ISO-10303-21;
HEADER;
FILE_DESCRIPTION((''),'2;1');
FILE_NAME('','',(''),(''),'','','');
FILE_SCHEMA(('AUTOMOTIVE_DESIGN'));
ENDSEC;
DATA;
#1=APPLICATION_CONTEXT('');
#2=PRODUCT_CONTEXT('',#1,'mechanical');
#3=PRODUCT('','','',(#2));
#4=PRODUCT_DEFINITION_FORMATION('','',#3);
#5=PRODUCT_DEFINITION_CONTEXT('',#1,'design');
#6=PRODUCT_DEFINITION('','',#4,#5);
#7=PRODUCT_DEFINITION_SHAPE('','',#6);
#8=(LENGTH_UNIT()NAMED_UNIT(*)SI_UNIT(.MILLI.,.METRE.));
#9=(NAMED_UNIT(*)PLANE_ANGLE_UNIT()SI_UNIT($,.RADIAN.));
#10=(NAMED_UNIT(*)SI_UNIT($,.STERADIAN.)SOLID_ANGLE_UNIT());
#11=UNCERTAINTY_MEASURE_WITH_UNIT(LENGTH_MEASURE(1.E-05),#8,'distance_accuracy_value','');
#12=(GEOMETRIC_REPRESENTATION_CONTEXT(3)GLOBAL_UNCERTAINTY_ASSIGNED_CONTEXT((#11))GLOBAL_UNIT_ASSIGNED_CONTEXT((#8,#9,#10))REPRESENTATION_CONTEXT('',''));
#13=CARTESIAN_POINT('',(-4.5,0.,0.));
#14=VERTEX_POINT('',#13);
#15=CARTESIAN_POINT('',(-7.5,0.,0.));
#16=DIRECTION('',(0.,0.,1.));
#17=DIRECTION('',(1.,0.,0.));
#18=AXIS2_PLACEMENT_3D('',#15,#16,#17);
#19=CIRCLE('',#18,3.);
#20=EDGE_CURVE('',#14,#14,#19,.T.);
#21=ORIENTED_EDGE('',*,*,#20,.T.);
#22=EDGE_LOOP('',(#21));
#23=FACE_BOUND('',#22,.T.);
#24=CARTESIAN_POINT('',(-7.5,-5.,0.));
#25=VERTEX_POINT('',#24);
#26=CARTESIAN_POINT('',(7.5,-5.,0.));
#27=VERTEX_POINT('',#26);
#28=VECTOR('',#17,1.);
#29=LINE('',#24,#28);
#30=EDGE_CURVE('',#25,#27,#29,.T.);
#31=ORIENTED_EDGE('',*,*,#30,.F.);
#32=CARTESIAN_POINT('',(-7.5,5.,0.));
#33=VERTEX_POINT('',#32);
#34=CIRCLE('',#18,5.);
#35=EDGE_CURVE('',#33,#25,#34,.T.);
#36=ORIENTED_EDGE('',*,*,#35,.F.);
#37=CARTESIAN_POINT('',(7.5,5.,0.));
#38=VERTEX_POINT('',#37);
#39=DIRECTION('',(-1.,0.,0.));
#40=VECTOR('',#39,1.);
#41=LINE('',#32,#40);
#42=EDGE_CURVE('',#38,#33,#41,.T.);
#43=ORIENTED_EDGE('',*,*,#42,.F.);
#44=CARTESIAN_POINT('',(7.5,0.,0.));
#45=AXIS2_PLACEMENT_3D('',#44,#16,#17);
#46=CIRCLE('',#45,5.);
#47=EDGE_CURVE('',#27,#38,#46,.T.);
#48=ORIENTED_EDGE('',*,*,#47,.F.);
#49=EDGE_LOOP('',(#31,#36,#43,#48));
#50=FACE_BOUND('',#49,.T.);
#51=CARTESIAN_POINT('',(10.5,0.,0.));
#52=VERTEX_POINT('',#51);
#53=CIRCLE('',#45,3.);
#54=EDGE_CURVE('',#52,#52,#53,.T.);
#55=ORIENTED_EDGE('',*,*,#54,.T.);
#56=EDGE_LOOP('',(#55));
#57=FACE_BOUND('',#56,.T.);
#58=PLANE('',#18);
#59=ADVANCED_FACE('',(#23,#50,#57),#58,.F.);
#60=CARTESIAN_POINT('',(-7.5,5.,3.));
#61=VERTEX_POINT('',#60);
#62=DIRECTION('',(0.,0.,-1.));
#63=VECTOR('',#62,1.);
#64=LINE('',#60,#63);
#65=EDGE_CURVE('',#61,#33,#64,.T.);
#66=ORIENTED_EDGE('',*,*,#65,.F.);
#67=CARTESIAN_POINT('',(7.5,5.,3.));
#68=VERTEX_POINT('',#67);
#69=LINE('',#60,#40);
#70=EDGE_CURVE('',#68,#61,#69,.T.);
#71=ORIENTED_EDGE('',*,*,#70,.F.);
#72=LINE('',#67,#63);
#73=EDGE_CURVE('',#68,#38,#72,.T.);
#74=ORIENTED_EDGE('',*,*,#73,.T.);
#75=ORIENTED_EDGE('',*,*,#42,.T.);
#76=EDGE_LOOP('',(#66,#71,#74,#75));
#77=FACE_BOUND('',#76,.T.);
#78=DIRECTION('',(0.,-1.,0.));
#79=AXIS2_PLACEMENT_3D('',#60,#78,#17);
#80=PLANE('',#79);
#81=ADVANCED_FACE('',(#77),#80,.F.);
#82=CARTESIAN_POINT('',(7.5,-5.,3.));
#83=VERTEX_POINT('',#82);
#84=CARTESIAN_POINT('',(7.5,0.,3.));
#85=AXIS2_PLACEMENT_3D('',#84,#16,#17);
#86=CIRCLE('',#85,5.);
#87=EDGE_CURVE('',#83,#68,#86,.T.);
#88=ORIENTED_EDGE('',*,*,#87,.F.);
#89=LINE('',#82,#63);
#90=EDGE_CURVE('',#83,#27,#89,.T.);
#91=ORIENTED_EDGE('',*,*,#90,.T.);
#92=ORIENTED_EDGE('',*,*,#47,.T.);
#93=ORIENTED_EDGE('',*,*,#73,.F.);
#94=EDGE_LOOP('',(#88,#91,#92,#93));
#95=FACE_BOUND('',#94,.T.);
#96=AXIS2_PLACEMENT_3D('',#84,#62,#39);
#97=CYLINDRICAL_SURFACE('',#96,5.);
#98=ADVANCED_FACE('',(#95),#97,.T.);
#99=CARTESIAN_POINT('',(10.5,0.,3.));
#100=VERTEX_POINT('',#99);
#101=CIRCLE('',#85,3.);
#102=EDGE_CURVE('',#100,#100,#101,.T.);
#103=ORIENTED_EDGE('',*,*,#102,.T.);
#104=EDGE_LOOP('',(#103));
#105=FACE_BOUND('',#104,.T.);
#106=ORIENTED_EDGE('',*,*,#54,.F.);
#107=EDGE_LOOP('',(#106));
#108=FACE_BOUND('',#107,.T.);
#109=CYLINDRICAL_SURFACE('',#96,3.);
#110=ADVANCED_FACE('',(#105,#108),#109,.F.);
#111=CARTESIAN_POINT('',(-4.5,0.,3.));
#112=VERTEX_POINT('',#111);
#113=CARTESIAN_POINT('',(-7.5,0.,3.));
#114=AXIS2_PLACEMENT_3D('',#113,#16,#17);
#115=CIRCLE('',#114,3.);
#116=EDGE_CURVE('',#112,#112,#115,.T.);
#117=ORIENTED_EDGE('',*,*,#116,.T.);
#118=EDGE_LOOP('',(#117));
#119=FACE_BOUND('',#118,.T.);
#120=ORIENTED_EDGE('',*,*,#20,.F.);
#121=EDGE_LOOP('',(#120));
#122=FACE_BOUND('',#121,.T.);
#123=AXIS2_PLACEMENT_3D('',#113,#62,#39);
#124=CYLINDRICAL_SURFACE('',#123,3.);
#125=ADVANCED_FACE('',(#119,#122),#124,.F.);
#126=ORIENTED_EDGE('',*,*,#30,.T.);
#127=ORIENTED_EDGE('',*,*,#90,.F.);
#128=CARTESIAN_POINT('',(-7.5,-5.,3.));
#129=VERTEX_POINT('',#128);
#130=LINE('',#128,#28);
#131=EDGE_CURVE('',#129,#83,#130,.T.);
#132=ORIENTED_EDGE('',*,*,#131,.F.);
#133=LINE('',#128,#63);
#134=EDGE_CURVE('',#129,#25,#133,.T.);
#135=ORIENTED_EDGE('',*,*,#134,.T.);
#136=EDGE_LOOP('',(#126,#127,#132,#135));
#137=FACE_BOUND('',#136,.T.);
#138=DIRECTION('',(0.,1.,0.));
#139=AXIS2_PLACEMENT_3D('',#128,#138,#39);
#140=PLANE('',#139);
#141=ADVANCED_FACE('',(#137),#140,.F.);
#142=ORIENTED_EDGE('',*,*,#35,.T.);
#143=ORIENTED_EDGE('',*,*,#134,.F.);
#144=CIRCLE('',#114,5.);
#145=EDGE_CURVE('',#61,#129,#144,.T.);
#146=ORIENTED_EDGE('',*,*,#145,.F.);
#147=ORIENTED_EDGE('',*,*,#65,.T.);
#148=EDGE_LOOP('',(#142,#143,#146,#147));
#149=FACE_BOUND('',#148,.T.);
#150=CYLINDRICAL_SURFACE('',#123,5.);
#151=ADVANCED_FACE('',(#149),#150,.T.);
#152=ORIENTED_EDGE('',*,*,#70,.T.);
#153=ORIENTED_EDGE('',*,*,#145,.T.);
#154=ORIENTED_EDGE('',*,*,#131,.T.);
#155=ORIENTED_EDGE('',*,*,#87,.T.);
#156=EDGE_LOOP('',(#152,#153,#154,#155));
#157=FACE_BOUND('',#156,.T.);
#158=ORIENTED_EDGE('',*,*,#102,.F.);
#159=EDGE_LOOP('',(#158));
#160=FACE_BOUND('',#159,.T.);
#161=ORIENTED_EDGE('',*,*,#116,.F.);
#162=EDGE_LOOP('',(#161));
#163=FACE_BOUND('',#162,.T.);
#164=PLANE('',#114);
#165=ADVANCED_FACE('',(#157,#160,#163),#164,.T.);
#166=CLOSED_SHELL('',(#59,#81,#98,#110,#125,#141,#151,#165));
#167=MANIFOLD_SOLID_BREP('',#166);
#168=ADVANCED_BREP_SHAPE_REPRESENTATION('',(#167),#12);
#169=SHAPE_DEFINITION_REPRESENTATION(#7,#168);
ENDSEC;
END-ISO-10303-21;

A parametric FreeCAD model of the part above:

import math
import FreeCAD as App
import Part
import Sketcher

V = App.Vector
Q = App.Units.Quantity

doc = App.newDocument("Part")
params = doc.addObject("Spreadsheet::Sheet", "Params")
for row, (alias, value) in enumerate([
    ("sketch1_diameter", "6 mm"),
    ("sketch1_radius", "5 mm"),
    ("sketch1_width", "15 mm"),
    ("pad1_length", "3 mm"),
], start=1):
    params.set(f"A{row}", alias)
    params.set(f"B{row}", "=" + value)
    params.setAlias(f"B{row}", alias)

body = doc.addObject("PartDesign::Body", "Body")

# Sketch on XY plane
sketch1 = body.newObject("Sketcher::SketchObject", "Sketch")
sketch1.AttachmentSupport = (doc.getObject("XY_Plane"), [""])
sketch1.MapMode = "FlatFace"
sketch1.addGeometry(Part.LineSegment(V(7.5, 5, 0), V(-7.5, 5, 0)), False)
sketch1.addGeometry(Part.ArcOfCircle(Part.Circle(V(-7.5, 0, 0), V(0, 0, 1), 5), math.radians(90), math.radians(270)), False)
sketch1.addGeometry(Part.LineSegment(V(-7.5, -5, 0), V(7.5, -5, 0)), False)
sketch1.addGeometry(Part.ArcOfCircle(Part.Circle(V(7.5, 0, 0), V(0, 0, 1), 5), math.radians(-90), math.radians(90)), False)
sketch1.addGeometry(Part.Circle(V(7.5, 0, 0), V(0, 0, 1), 3), False)
sketch1.addGeometry(Part.Circle(V(-7.5, 0, 0), V(0, 0, 1), 3), False)
sketch1.addConstraint(Sketcher.Constraint("Tangent", 0, 2, 1, 1))
sketch1.addConstraint(Sketcher.Constraint("Tangent", 1, 2, 2, 1))
sketch1.addConstraint(Sketcher.Constraint("Tangent", 2, 2, 3, 1))
sketch1.addConstraint(Sketcher.Constraint("Tangent", 3, 2, 0, 1))
sketch1.addConstraint(Sketcher.Constraint("Horizontal", 0))
sketch1.addConstraint(Sketcher.Constraint("Horizontal", 2))
sketch1.addConstraint(Sketcher.Constraint("Coincident", 4, 3, 3, 3))
sketch1.addConstraint(Sketcher.Constraint("Coincident", 5, 3, 1, 3))
sketch1.addConstraint(Sketcher.Constraint("Equal", 4, 5))
sketch1.addConstraint(Sketcher.Constraint("Symmetric", 1, 3, 3, 3, -1, 1))
sketch1.addConstraint(Sketcher.Constraint("Diameter", 4, Q("6 mm")))
sketch1.addConstraint(Sketcher.Constraint("Radius", 1, Q("5 mm")))
sketch1.addConstraint(Sketcher.Constraint("DistanceX", 0, 2, 0, 1, Q("15 mm")))
sketch1.setExpression("Constraints[10]", "Params.sketch1_diameter")
sketch1.setExpression("Constraints[11]", "Params.sketch1_radius")
sketch1.setExpression("Constraints[12]", "Params.sketch1_width")
pad1 = body.newObject("PartDesign::Pad", "Pad")
pad1.Profile = sketch1
pad1.setExpression("Length", "Params.pad1_length")

doc.recompute()
